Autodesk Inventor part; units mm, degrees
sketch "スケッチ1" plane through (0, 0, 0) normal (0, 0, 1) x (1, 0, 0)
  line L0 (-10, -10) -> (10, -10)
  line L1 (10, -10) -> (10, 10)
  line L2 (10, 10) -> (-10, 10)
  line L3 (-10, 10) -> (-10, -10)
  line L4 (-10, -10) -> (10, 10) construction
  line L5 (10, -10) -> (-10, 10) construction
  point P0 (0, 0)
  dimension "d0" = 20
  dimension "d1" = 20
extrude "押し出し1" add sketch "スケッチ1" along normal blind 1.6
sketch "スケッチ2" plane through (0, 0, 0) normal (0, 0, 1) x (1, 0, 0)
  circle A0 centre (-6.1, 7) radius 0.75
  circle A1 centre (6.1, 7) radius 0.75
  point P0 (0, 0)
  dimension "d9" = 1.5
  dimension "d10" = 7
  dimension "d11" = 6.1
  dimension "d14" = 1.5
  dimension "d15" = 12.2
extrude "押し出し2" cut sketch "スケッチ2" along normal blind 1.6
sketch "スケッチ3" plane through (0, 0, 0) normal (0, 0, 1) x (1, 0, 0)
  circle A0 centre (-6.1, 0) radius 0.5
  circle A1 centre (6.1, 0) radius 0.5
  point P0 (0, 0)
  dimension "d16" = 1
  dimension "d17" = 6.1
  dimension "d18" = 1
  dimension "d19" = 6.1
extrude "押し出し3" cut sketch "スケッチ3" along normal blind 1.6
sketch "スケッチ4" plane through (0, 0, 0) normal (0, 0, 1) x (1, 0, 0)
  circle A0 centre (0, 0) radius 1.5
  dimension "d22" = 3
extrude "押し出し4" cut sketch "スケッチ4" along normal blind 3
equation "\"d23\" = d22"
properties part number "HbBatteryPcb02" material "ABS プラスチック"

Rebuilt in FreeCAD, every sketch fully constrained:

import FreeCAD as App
import Part
import Sketcher

V = App.Vector
Q = App.Units.Quantity

doc = App.newDocument("Part")
body = doc.addObject("PartDesign::Body", "Body")

# Sketch on XY plane
sketch1 = body.newObject("Sketcher::SketchObject", "Sketch")
sketch1.AttachmentSupport = (doc.getObject("XY_Plane"), [""])
sketch1.MapMode = "FlatFace"
sketch1.addGeometry([
    Part.LineSegment(V(-10, 10, 0), V(-10, -10, 0)),
    Part.LineSegment(V(-10, -10, 0), V(10, -10, 0)),
    Part.LineSegment(V(10, -10, 0), V(10, 10, 0)),
    Part.LineSegment(V(10, 10, 0), V(-10, 10, 0)),
], False)
sketch1.addConstraint([
    Sketcher.Constraint("Coincident", 0, 2, 1, 1),
    Sketcher.Constraint("Coincident", 1, 2, 2, 1),
    Sketcher.Constraint("Coincident", 2, 2, 3, 1),
    Sketcher.Constraint("Coincident", 3, 2, 0, 1),
    Sketcher.Constraint("Vertical", 0),
    Sketcher.Constraint("Horizontal", 1),
    Sketcher.Constraint("Vertical", 2),
    Sketcher.Constraint("Horizontal", 3),
    Sketcher.Constraint("Symmetric", 0, 2, 2, 2, -1, 1),
    Sketcher.Constraint("Equal", 3, 0),
    Sketcher.Constraint("DistanceX", 1, 1, 1, 2, Q("20 mm")),
])
pad1 = body.newObject("PartDesign::Pad", "Pad")
pad1.Profile = sketch1
pad1.Length = 1.6

# Sketch on XY plane
sketch2 = body.newObject("Sketcher::SketchObject", "Sketch001")
sketch2.AttachmentSupport = (doc.getObject("XY_Plane"), [""])
sketch2.MapMode = "FlatFace"
sketch2.addGeometry([
    Part.Circle(V(-6.1, 7, 0), V(0, 0, 1), 0.75),
    Part.Circle(V(6.1, 7, 0), V(0, 0, 1), 0.75),
], False)
sketch2.addConstraint([
    Sketcher.Constraint("Equal", 0, 1),
    Sketcher.Constraint("Symmetric", 0, 3, 1, 3, -2),
    Sketcher.Constraint("Diameter", 0, Q("1.5 mm")),
    Sketcher.Constraint("DistanceY", -1, 1, 0, 3, Q("7 mm")),
    Sketcher.Constraint("DistanceX", 0, 3, -1, 1, Q("6.1 mm")),
])
pocket1 = body.newObject("PartDesign::Pocket", "Pocket")
pocket1.Profile = sketch2
pocket1.Length = 1.6
pocket1.Reversed = True

# Sketch on XY plane
sketch3 = body.newObject("Sketcher::SketchObject", "Sketch002")
sketch3.AttachmentSupport = (doc.getObject("XY_Plane"), [""])
sketch3.MapMode = "FlatFace"
sketch3.addGeometry([
    Part.Circle(V(-6.1, 0, 0), V(0, 0, 1), 0.5),
    Part.Circle(V(6.1, 0, 0), V(0, 0, 1), 0.5),
], False)
sketch3.addConstraint([
    Sketcher.Constraint("Equal", 0, 1),
    Sketcher.Constraint("Symmetric", 0, 3, 1, 3, -1, 1),
    Sketcher.Constraint("PointOnObject", 0, 3, -1),
    Sketcher.Constraint("Diameter", 0, Q("1 mm")),
    Sketcher.Constraint("DistanceX", 0, 3, -1, 1, Q("6.1 mm")),
])
pocket2 = body.newObject("PartDesign::Pocket", "Pocket001")
pocket2.Profile = sketch3
pocket2.Length = 1.6
pocket2.Reversed = True

# Sketch on XY plane
sketch4 = body.newObject("Sketcher::SketchObject", "Sketch003")
sketch4.AttachmentSupport = (doc.getObject("XY_Plane"), [""])
sketch4.MapMode = "FlatFace"
sketch4.addGeometry(Part.Circle(V(0, 0, 0), V(0, 0, 1), 1.5), False)
sketch4.addConstraint([
    Sketcher.Constraint("Coincident", 0, 3, -1, 1),
    Sketcher.Constraint("Diameter", 0, Q("3 mm")),
])
pocket3 = body.newObject("PartDesign::Pocket", "Pocket002")
pocket3.Profile = sketch4
pocket3.Length = 3
pocket3.Reversed = True

doc.recompute()
